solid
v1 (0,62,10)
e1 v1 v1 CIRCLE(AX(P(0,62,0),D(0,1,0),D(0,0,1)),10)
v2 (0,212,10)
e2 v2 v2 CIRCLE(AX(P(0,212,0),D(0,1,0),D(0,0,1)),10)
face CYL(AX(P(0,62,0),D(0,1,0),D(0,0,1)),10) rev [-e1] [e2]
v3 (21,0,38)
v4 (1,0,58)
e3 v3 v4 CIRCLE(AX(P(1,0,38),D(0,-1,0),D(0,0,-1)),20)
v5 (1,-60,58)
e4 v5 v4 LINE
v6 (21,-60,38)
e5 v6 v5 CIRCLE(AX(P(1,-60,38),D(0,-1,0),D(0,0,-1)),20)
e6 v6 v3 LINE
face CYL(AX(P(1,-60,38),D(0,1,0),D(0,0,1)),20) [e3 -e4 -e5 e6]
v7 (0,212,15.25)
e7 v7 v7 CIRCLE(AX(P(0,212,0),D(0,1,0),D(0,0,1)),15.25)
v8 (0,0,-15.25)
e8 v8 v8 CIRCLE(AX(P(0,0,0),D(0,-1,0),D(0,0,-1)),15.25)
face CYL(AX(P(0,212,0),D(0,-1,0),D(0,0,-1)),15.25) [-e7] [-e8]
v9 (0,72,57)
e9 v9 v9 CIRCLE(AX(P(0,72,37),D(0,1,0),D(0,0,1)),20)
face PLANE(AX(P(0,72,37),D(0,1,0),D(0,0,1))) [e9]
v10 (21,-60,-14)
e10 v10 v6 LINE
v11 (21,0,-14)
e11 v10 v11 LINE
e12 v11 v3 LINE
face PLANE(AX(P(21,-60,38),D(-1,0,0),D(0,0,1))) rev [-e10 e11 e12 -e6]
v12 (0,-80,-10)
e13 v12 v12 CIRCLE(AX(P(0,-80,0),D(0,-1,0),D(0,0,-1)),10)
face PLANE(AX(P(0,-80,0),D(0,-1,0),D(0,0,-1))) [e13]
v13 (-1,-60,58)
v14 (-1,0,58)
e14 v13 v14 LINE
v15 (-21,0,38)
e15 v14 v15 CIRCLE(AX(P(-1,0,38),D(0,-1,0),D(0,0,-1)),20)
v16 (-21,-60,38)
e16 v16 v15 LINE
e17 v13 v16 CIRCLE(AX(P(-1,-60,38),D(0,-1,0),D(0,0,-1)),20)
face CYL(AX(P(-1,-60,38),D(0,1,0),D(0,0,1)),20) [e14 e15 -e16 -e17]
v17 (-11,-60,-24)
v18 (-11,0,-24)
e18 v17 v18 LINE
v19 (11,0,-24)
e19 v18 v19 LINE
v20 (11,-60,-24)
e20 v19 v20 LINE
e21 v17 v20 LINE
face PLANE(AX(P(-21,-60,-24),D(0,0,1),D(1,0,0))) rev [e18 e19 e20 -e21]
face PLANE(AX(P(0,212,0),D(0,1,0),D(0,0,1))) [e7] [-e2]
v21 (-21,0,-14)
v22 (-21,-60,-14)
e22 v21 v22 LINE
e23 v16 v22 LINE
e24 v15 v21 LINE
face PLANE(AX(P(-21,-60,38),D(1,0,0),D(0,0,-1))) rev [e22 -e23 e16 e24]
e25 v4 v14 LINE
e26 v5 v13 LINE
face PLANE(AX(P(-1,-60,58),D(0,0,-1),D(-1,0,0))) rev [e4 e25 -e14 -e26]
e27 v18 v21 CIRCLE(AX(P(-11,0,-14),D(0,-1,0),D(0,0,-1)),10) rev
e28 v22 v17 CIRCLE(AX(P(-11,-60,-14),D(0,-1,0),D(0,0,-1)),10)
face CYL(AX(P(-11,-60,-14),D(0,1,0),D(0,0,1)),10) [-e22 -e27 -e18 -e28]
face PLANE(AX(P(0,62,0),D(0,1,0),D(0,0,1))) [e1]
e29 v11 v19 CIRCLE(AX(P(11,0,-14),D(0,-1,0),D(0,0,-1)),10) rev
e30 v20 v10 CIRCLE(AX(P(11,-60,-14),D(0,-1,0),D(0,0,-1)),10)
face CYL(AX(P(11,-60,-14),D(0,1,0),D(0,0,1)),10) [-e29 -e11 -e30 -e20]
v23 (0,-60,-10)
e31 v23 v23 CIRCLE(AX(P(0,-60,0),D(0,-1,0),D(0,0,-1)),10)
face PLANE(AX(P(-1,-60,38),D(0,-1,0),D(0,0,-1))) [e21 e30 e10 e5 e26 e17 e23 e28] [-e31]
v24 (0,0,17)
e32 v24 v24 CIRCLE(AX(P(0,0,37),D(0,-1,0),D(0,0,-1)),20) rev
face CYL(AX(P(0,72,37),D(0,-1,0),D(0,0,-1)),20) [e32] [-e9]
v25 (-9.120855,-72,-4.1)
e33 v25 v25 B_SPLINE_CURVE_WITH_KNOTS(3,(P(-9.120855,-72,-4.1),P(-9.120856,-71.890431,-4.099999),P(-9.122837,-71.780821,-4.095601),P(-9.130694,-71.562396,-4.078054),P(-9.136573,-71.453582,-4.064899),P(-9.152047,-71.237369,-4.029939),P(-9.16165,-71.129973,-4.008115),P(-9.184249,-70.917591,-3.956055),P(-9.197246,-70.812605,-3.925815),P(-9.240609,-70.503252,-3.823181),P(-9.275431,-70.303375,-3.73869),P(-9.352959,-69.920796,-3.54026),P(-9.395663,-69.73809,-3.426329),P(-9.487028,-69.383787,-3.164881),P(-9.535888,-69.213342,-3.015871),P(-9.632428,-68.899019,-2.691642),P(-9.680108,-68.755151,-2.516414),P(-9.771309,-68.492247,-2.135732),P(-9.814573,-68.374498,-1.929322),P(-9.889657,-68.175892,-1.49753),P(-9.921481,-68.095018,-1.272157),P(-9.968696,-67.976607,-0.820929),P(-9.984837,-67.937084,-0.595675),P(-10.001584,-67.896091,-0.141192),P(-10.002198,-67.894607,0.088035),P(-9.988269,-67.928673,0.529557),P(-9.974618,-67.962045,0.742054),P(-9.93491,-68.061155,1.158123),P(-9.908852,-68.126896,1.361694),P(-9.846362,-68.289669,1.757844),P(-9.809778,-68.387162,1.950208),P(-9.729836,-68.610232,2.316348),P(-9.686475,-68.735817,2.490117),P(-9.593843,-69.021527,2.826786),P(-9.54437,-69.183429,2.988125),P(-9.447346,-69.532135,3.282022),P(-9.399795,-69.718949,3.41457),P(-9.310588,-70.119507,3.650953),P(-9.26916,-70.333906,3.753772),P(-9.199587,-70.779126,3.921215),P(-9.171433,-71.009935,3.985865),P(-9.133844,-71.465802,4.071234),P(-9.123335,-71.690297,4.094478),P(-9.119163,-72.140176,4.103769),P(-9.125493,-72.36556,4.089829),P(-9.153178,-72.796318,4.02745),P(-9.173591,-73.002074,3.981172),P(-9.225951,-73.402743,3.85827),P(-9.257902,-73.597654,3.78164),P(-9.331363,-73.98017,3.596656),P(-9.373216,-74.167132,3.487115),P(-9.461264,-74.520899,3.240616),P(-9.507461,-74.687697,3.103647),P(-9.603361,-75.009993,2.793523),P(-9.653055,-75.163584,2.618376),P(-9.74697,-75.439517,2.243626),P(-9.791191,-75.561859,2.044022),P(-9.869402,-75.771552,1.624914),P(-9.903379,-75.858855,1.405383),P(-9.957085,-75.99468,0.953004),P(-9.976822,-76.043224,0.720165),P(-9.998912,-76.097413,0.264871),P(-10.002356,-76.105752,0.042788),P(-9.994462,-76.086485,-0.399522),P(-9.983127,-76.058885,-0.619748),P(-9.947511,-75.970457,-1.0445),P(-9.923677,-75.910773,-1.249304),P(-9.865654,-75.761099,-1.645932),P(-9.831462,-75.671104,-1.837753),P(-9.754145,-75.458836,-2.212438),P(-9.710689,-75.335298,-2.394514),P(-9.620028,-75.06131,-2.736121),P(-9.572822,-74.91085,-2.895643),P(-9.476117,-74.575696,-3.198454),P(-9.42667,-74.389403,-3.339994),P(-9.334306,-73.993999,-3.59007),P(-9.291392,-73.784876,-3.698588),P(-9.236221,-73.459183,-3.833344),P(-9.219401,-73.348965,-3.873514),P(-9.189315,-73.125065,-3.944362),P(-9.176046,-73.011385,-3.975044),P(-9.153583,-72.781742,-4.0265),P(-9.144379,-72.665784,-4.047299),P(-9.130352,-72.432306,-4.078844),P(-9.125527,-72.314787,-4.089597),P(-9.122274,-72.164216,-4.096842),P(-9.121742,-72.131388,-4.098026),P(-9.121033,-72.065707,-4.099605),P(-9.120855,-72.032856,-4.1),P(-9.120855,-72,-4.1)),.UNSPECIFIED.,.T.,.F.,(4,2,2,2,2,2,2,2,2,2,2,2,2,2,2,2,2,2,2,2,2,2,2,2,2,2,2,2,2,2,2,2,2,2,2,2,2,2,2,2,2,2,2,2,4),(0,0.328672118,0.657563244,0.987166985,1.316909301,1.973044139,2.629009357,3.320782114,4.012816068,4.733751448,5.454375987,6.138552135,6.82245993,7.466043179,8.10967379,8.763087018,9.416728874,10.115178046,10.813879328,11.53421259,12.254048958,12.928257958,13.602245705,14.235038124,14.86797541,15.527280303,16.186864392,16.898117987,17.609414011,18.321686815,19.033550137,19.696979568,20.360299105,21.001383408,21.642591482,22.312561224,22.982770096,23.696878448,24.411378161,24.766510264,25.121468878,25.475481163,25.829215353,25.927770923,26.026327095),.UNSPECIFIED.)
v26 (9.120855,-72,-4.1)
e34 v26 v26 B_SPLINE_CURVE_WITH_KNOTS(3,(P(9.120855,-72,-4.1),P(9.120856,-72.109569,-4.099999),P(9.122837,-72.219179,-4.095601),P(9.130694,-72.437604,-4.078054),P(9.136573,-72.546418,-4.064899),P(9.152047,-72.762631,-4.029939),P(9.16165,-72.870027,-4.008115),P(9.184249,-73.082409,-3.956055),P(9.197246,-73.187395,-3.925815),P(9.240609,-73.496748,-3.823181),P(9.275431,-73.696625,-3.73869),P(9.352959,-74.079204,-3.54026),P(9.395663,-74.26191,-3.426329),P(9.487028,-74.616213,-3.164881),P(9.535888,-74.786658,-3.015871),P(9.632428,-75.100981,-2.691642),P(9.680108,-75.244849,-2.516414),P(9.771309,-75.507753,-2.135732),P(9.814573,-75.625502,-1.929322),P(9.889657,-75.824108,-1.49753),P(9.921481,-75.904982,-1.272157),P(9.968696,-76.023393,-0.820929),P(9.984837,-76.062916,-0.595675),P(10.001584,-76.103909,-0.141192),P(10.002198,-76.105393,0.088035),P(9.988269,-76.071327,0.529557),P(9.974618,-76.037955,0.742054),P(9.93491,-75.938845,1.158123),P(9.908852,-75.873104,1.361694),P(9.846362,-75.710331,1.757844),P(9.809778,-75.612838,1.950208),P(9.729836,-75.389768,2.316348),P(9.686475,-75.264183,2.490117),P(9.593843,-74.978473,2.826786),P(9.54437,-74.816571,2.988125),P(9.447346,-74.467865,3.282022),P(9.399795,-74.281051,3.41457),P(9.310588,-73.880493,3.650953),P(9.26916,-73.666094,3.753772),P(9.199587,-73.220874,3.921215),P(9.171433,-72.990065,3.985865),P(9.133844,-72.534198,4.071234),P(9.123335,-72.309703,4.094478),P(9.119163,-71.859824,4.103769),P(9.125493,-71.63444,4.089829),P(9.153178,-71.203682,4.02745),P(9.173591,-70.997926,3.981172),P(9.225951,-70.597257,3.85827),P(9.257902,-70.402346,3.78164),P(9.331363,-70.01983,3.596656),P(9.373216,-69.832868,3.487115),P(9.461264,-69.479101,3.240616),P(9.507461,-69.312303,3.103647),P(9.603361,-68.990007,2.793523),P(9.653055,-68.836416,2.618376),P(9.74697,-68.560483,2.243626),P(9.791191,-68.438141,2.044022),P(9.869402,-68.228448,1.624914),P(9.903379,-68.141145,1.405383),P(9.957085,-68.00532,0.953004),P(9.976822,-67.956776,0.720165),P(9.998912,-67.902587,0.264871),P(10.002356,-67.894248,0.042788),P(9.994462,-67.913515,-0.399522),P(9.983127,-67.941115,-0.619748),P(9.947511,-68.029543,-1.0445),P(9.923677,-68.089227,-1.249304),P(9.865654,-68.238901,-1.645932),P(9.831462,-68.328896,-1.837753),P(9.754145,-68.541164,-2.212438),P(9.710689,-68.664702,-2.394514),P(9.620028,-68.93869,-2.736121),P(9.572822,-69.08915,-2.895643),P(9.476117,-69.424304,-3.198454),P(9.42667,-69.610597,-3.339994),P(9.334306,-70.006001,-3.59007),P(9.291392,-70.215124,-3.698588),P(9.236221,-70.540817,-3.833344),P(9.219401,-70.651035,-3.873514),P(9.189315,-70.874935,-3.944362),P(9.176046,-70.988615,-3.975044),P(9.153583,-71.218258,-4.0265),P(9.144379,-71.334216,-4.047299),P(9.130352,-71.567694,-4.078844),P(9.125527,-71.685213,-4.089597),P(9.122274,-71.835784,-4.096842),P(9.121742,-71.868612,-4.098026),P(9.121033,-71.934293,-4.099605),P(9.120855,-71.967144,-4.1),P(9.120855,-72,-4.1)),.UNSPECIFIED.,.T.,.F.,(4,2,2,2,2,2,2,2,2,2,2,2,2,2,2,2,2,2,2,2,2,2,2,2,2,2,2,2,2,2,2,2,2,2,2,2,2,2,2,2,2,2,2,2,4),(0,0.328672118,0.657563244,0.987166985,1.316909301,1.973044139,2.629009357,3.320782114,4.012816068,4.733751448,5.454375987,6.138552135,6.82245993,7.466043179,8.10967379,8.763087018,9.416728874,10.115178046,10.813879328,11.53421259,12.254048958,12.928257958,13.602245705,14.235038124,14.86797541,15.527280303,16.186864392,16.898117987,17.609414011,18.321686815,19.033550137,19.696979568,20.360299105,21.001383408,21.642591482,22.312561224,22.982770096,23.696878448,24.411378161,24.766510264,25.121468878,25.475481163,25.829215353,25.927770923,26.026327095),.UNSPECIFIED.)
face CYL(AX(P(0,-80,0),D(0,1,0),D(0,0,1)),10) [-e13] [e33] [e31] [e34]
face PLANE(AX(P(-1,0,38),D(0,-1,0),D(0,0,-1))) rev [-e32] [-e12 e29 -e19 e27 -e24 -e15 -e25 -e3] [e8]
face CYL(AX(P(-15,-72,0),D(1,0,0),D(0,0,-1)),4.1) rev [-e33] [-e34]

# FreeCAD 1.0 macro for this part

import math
import FreeCAD as App
import Part
import Sketcher
Q = App.Units.Quantity


def edges_at(feature, points):
    """Names of the edges that pass closest to the given points."""
    edges = feature.Shape.Edges
    near = lambda p: min(range(len(edges)), key=lambda i: edges[i].distToShape(Part.Vertex(*p))[0])
    return sorted({f"Edge{near(p) + 1}" for p in points})

doc = App.newDocument("Part")
body = doc.addObject("PartDesign::Body", "Body")

# Sketch on XZ plane
sketch1 = body.newObject("Sketcher::SketchObject", "Sketch")
sketch1.AttachmentSupport = (doc.getObject("XZ_Plane"), [""])
sketch1.MapMode = "FlatFace"
sketch1.addGeometry(Part.Circle(App.Vector(0, 0, 0), App.Vector(0, 0, 1), 15), False)
sketch1.addConstraint([
    Sketcher.Constraint("Coincident", 0, 3, -1, 1),
    Sketcher.Constraint("Diameter", 0, Q("30.5 mm")),
])
pad1 = body.newObject("PartDesign::Pad", "Pad")
pad1.Profile = sketch1
pad1.Length = 212
pad1.Reversed = True

# Sketch on XZ plane
sketch2 = body.newObject("Sketcher::SketchObject", "Sketch001")
sketch2.AttachmentSupport = (doc.getObject("XZ_Plane"), [""])
sketch2.MapMode = "FlatFace"
sketch2.addGeometry([
    Part.LineSegment(App.Vector(1, 58, 0), App.Vector(-1, 58, 0)),  # 0
    Part.ArcOfCircle(Part.Circle(App.Vector(-1, 38, 0), App.Vector(0, 0, 1), 20), math.radians(90), math.radians(180)),  # 1
    Part.LineSegment(App.Vector(-21, 38, 0), App.Vector(-21, -24, 0)),  # 2
    Part.LineSegment(App.Vector(-21, -24, 0), App.Vector(21, -24, 0)),  # 3
    Part.LineSegment(App.Vector(21, -24, 0), App.Vector(21, 38, 0)),  # 4
    Part.ArcOfCircle(Part.Circle(App.Vector(1, 38, 0), App.Vector(0, 0, 1), 20), math.radians(0), math.radians(90)),  # 5
], False)
sketch2.addConstraint([
    Sketcher.Constraint("Tangent", 0, 2, 1, 1),
    Sketcher.Constraint("Tangent", 1, 2, 2, 1),
    Sketcher.Constraint("Coincident", 2, 2, 3, 1),
    Sketcher.Constraint("Coincident", 3, 2, 4, 1),
    Sketcher.Constraint("Tangent", 4, 2, 5, 1),
    Sketcher.Constraint("Tangent", 5, 2, 0, 1),
    Sketcher.Constraint("Horizontal", 0),
    Sketcher.Constraint("Vertical", 2),
    Sketcher.Constraint("Horizontal", 3),
    Sketcher.Constraint("Vertical", 4),
    Sketcher.Constraint("Equal", 1, 5),
    Sketcher.Constraint("Radius", 1, Q("20 mm")),
    Sketcher.Constraint("DistanceX", 0, 2, 0, 1, Q("2 mm")),
    Sketcher.Constraint("DistanceY", 2, 2, 2, 1, Q("62 mm")),
    Sketcher.Constraint("DistanceX", 1, 3, -1, 1, Q("1 mm")),
    Sketcher.Constraint("DistanceY", -1, 1, 1, 3, Q("38 mm")),
])
pad2 = body.newObject("PartDesign::Pad", "Pad001")
pad2.Profile = sketch2
pad2.Length = 60

# Sketch on XZ plane
sketch3 = body.newObject("Sketcher::SketchObject", "Sketch002")
sketch3.AttachmentSupport = (doc.getObject("XZ_Plane"), [""])
sketch3.MapMode = "FlatFace"
sketch3.addGeometry(Part.Circle(App.Vector(0, 37, 0), App.Vector(0, 0, 1), 20), False)
sketch3.addConstraint([
    Sketcher.Constraint("PointOnObject", 0, 3, -2),
    Sketcher.Constraint("Diameter", 0, Q("40 mm")),
    Sketcher.Constraint("DistanceY", -1, 1, 0, 3, Q("37 mm")),
])
pad3 = body.newObject("PartDesign::Pad", "Pad002")
pad3.Profile = sketch3
pad3.Length = 72
pad3.Reversed = True

# Sketch on XZ plane
sketch4 = body.newObject("Sketcher::SketchObject", "Sketch003")
sketch4.AttachmentSupport = (doc.getObject("XZ_Plane"), [""])
sketch4.MapMode = "FlatFace"
sketch4.AttachmentOffset = App.Placement(App.Vector(0, 0, 60), App.Rotation())
sketch4.addGeometry(Part.Circle(App.Vector(0, 0, 0), App.Vector(0, 0, 1), 10), False)
sketch4.addConstraint([
    Sketcher.Constraint("Coincident", 0, 3, -1, 1),
    Sketcher.Constraint("Diameter", 0, Q("20 mm")),
])
pad4 = body.newObject("PartDesign::Pad", "Pad003")
pad4.Profile = sketch4
pad4.Length = 20

# Sketch on YZ plane
sketch5 = body.newObject("Sketcher::SketchObject", "Sketch004")
sketch5.AttachmentSupport = (doc.getObject("YZ_Plane"), [""])
sketch5.MapMode = "FlatFace"
sketch5.addGeometry(Part.Circle(App.Vector(-72, 0, 0), App.Vector(0, 0, 1), 4.1), False)
sketch5.addConstraint([
    Sketcher.Constraint("PointOnObject", 0, 3, -1),
    Sketcher.Constraint("Diameter", 0, Q("8.2 mm")),
    Sketcher.Constraint("DistanceX", 0, 3, -1, 1, Q("72 mm")),
])
pocket1 = body.newObject("PartDesign::Pocket", "Pocket")
pocket1.Profile = sketch5
pocket1.Length = 30
pocket1.Midplane = True

# Sketch on XZ plane
sketch6 = body.newObject("Sketcher::SketchObject", "Sketch005")
sketch6.AttachmentSupport = (doc.getObject("XZ_Plane"), [""])
sketch6.MapMode = "FlatFace"
sketch6.AttachmentOffset = App.Placement(App.Vector(0, 0, -212), App.Rotation())
sketch6.addGeometry(Part.Circle(App.Vector(0, 0, 0), App.Vector(0, 0, 1), 10), False)
sketch6.addConstraint([
    Sketcher.Constraint("Coincident", 0, 3, -1, 1),
    Sketcher.Constraint("Diameter", 0, Q("20 mm")),
])
pocket2 = body.newObject("PartDesign::Pocket", "Pocket001")
pocket2.Profile = sketch6
pocket2.Length = 150
pocket2.Reversed = True
doc.recompute()

fillet = body.newObject("PartDesign::Fillet", "Fillet")
fillet.Base = (pocket2, edges_at(pocket2, [(21, -30, -24), (-21, -30, -24)]))
fillet.Radius = 10

doc.recompute()
